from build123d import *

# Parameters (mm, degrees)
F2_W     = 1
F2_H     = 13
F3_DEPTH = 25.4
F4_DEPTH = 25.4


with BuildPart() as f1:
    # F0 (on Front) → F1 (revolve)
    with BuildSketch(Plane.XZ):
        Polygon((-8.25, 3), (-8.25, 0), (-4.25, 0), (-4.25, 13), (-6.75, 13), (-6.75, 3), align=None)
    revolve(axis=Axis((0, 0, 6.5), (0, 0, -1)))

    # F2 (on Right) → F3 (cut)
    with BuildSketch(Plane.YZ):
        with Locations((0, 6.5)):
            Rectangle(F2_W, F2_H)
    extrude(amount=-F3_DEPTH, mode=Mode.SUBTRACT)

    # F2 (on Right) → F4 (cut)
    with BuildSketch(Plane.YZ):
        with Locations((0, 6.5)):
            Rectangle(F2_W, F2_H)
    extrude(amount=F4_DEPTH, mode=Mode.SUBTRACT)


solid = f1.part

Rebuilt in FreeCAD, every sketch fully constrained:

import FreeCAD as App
import Part
import Sketcher

V = App.Vector


def add_polygon(sketch, points):
    """Adds a closed chain of lines whose ends are joined by coincident constraints."""
    first, n = sketch.GeometryCount, len(points)
    for a, b in zip(points, points[1:] + points[:1]):
        sketch.addGeometry(Part.LineSegment(App.Vector(*a, 0), App.Vector(*b, 0)), False)
    for i in range(n):
        sketch.addConstraint(Sketcher.Constraint("Coincident", first + i, 2, first + (i + 1) % n, 1))

doc = App.newDocument("Part")
body = doc.addObject("PartDesign::Body", "Body")
body.AllowCompound = True

# Sketch on XZ plane
sketch1 = doc.addObject("Sketcher::SketchObject", "Sketch")
body.addObject(sketch1)
sketch1.AttachmentSupport = (doc.XZ_Plane, [""])
sketch1.MapMode = "FlatFace"
add_polygon(sketch1, [(-8.2, 3), (-8.2, 0), (-4.2, 0), (-4.2, 13), (-6.8, 13), (-6.8, 3)])  # lines 0-5
sketch1.addConstraint([
    Sketcher.Constraint("Vertical", 0),
    Sketcher.Constraint("Horizontal", 1),
    Sketcher.Constraint("Vertical", 2),
    Sketcher.Constraint("Horizontal", 3),
    Sketcher.Constraint("Vertical", 4),
    Sketcher.Constraint("Horizontal", 5),
    Sketcher.Constraint("PointOnObject", 0, 2, -1),
    Sketcher.Constraint("DistanceX", 1, 1, 1, 2, 4.0),
    Sketcher.Constraint("DistanceY", 0, 2, 0, 1, 3.0),
    Sketcher.Constraint("DistanceY", 2, 1, 2, 2, 13.0),
    Sketcher.Constraint("DistanceX", 3, 2, 3, 1, 2.5),
    Sketcher.Constraint("DistanceX", 0, 2, -1, 1, 8.25),
])
revolution = doc.addObject("PartDesign::Revolution", "Revolution")
body.addObject(revolution)
revolution.Profile = sketch1
revolution.ReferenceAxis = (sketch1, ["V_Axis"])
revolution.Angle = 360

# Sketch on YZ plane
sketch2 = doc.addObject("Sketcher::SketchObject", "Sketch001")
body.addObject(sketch2)
sketch2.AttachmentSupport = (doc.YZ_Plane, [""])
sketch2.MapMode = "FlatFace"
add_polygon(sketch2, [(-0.5, 13), (-0.5, 0), (0.5, 0), (0.5, 13)])  # lines 0-3
sketch2.addConstraint([
    Sketcher.Constraint("Vertical", 0),
    Sketcher.Constraint("Horizontal", 1),
    Sketcher.Constraint("Vertical", 2),
    Sketcher.Constraint("Horizontal", 3),
    Sketcher.Constraint("Symmetric", 0, 2, 1, 2, -1, 1),
    Sketcher.Constraint("DistanceX", 1, 1, 1, 2, 1.0),
    Sketcher.Constraint("DistanceY", 0, 2, 0, 1, 13.0),
])
pocket1 = doc.addObject("PartDesign::Pocket", "Pocket")
body.addObject(pocket1)
pocket1.Profile = sketch2
pocket1.Length = 25.4

# Sketch on YZ plane
sketch3 = doc.addObject("Sketcher::SketchObject", "Sketch002")
body.addObject(sketch3)
sketch3.AttachmentSupport = (doc.YZ_Plane, [""])
sketch3.MapMode = "FlatFace"
add_polygon(sketch3, [(-0.5, 13), (-0.5, 0), (0.5, 0), (0.5, 13)])  # lines 0-3
sketch3.addConstraint([
    Sketcher.Constraint("Vertical", 0),
    Sketcher.Constraint("Horizontal", 1),
    Sketcher.Constraint("Vertical", 2),
    Sketcher.Constraint("Horizontal", 3),
    Sketcher.Constraint("Symmetric", 0, 2, 1, 2, -1, 1),
    Sketcher.Constraint("DistanceX", 1, 1, 1, 2, 1.0),
    Sketcher.Constraint("DistanceY", 0, 2, 0, 1, 13.0),
])
pocket2 = doc.addObject("PartDesign::Pocket", "Pocket001")
body.addObject(pocket2)
pocket2.Profile = sketch3
pocket2.Length = 25.4
pocket2.Reversed = True

doc.recompute()
